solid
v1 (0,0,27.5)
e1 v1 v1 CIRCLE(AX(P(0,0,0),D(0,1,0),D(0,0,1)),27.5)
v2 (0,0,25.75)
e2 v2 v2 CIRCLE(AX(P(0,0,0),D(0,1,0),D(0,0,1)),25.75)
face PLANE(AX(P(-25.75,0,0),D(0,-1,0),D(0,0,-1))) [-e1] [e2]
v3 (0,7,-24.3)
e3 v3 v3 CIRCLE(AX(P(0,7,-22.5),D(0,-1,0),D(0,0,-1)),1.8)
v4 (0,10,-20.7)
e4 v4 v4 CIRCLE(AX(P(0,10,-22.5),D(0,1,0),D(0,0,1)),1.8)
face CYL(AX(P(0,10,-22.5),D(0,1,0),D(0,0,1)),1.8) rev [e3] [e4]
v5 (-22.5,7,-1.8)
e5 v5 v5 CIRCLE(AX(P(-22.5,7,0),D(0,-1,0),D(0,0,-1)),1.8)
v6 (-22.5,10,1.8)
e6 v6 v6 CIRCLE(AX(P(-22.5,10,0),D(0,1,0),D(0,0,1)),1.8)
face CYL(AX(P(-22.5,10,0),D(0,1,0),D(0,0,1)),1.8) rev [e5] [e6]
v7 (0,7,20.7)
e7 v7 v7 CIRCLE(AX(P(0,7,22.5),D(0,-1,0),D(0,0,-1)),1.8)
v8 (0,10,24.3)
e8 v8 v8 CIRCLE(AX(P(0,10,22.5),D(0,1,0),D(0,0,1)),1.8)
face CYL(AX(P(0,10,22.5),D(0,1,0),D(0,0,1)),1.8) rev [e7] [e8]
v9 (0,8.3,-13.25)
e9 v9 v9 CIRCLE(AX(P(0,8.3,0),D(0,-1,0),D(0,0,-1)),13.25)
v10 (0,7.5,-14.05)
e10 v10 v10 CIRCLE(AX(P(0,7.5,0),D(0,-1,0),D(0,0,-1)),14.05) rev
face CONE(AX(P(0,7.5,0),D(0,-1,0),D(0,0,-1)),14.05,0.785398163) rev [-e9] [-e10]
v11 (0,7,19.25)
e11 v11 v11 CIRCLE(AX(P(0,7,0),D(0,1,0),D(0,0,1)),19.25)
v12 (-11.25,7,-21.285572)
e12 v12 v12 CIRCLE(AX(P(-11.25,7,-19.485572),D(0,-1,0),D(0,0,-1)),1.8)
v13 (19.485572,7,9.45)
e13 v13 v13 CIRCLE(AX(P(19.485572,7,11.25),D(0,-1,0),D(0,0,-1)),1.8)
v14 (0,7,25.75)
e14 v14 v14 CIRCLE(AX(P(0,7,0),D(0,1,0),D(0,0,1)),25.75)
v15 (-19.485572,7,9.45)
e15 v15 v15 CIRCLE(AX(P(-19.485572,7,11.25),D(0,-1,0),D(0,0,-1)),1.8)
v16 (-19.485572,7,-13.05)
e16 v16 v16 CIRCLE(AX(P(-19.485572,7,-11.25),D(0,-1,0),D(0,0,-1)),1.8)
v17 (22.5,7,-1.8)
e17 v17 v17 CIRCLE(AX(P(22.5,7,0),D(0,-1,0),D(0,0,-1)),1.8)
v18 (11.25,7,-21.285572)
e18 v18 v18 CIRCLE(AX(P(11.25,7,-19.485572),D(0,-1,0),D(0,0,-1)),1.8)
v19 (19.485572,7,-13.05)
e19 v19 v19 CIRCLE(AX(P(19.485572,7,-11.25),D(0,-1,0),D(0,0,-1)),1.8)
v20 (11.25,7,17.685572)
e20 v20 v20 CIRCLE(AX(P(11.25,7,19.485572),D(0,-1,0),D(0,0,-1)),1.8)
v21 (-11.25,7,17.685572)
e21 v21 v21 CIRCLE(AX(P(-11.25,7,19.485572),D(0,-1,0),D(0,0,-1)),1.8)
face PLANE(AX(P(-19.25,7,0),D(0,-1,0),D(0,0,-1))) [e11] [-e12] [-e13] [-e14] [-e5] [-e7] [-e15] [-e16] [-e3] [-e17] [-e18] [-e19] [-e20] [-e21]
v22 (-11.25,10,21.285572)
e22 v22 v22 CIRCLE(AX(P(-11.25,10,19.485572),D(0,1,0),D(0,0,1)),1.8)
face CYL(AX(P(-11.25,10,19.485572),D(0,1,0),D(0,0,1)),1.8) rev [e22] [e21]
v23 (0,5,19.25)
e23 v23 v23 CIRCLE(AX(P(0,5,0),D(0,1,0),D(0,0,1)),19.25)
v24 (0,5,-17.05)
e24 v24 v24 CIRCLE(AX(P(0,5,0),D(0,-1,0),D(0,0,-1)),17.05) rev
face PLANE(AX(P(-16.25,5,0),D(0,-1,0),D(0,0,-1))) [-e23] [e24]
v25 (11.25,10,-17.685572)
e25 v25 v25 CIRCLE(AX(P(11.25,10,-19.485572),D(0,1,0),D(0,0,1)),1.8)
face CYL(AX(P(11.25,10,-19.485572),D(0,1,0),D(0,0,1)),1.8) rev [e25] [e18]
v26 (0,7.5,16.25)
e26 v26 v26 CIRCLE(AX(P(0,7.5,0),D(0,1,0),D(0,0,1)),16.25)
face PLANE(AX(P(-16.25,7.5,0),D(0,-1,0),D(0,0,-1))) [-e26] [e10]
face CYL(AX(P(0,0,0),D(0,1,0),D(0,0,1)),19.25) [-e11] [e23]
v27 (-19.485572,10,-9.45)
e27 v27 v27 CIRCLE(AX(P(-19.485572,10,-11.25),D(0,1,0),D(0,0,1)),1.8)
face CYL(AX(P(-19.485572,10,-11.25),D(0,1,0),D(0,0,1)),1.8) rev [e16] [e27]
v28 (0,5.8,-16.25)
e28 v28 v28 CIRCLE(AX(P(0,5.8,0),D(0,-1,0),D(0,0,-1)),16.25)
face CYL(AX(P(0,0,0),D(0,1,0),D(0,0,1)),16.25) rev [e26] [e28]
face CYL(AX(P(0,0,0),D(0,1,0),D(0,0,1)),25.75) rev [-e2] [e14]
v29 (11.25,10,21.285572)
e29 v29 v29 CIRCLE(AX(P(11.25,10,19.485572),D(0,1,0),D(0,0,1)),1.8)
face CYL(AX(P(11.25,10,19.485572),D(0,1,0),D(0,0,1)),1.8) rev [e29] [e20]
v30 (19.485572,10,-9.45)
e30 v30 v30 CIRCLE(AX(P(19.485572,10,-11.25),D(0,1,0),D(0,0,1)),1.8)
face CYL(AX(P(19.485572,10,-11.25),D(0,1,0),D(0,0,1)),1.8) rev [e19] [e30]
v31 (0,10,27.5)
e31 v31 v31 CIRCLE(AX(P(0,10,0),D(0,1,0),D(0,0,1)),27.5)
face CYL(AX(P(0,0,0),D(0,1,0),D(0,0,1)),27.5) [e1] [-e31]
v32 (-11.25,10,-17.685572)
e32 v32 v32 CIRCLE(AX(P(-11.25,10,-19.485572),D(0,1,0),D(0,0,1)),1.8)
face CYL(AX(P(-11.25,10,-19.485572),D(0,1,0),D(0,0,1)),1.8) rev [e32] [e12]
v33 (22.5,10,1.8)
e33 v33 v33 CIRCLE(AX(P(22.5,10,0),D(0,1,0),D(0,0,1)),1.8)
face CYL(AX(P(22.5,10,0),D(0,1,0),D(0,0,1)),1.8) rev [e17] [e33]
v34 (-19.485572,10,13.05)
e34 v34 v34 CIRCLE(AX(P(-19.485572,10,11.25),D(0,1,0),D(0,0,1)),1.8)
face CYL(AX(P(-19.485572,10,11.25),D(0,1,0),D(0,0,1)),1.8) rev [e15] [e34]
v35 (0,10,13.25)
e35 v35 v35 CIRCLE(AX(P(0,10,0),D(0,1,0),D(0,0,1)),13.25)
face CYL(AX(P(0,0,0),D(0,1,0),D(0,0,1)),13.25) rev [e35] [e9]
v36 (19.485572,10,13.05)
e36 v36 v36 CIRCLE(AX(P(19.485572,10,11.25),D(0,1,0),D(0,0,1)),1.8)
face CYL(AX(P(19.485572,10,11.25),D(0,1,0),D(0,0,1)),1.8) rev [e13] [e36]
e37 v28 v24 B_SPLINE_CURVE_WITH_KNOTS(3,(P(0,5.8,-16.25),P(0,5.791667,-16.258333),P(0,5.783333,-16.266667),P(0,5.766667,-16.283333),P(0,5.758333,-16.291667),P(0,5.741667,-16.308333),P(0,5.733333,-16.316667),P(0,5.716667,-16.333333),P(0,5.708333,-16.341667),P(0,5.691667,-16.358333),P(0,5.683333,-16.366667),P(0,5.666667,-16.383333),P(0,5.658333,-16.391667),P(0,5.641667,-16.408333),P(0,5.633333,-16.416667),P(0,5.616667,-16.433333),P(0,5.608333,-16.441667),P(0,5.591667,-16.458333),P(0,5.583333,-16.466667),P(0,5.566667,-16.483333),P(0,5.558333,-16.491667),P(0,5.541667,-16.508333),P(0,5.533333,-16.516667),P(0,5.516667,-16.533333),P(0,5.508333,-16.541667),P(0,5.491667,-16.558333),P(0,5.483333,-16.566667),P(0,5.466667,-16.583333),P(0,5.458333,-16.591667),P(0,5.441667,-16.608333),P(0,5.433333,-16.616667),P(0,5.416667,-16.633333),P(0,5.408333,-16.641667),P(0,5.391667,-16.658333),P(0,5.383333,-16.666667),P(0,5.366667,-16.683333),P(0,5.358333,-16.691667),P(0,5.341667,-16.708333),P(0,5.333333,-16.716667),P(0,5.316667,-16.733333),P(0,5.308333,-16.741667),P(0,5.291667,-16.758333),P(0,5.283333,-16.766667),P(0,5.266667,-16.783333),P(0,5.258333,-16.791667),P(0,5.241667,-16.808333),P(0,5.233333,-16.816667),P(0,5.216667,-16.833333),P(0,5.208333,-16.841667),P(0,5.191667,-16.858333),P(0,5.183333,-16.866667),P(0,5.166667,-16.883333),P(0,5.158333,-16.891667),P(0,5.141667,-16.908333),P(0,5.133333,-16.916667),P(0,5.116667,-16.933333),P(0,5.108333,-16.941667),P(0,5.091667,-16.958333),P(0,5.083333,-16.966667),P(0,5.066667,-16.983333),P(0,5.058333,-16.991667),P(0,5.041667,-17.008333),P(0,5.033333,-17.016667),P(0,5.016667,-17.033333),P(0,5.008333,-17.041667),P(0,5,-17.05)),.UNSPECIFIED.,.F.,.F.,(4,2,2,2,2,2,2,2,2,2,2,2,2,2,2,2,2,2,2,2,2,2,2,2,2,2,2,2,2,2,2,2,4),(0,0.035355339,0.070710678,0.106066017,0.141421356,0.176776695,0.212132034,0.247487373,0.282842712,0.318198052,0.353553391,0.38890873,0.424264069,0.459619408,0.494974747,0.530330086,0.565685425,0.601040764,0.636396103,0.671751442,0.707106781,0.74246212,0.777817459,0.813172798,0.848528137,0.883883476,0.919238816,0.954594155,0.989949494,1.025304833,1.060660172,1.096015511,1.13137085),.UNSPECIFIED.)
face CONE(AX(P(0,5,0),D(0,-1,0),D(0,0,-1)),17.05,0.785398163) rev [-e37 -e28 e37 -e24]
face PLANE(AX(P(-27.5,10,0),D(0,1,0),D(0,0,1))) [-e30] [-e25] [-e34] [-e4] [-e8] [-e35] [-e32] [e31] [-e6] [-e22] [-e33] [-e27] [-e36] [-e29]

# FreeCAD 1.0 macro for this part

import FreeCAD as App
import Part
import Sketcher
from FreeCAD import Vector
Q = App.Units.Quantity


def edges_at(feature, points):
    """Names of the edges that pass closest to the given points."""
    edges = feature.Shape.Edges
    near = lambda p: min(range(len(edges)), key=lambda i: edges[i].distToShape(Part.Vertex(*p))[0])
    return sorted({f"Edge{near(p) + 1}" for p in points})

doc = App.newDocument("Part")
body = doc.addObject("PartDesign::Body", "Body")

# Sketch on XY plane
sketch1 = doc.addObject("Sketcher::SketchObject", "Sketch")
body.addObject(sketch1)
sketch1.AttachmentSupport = (doc.XY_Plane, [""])
sketch1.MapMode = "FlatFace"
sketch1.addGeometry(Part.LineSegment(Vector(-27.5, 0, 0), Vector(-25.75, 0, 0)), False)
sketch1.addGeometry(Part.LineSegment(Vector(-25.75, 0, 0), Vector(-25.75, 7, 0)), False)
sketch1.addGeometry(Part.LineSegment(Vector(-25.75, 7, 0), Vector(-19.25, 7, 0)), False)
sketch1.addGeometry(Part.LineSegment(Vector(-19.25, 7, 0), Vector(-19.25, 5, 0)), False)
sketch1.addGeometry(Part.LineSegment(Vector(-19.25, 5, 0), Vector(-16.25, 5, 0)), False)
sketch1.addGeometry(Part.LineSegment(Vector(-16.25, 5, 0), Vector(-16.25, 7.5, 0)), False)
sketch1.addGeometry(Part.LineSegment(Vector(-16.25, 7.5, 0), Vector(-13.25, 7.5, 0)), False)
sketch1.addGeometry(Part.LineSegment(Vector(-13.25, 7.5, 0), Vector(-13.25, 10, 0)), False)
sketch1.addGeometry(Part.LineSegment(Vector(-13.25, 10, 0), Vector(-27.5, 10, 0)), False)
sketch1.addGeometry(Part.LineSegment(Vector(-27.5, 10, 0), Vector(-27.5, 0, 0)), False)
sketch1.addConstraint(Sketcher.Constraint("Coincident", 0, 2, 1, 1))
sketch1.addConstraint(Sketcher.Constraint("Coincident", 1, 2, 2, 1))
sketch1.addConstraint(Sketcher.Constraint("Coincident", 2, 2, 3, 1))
sketch1.addConstraint(Sketcher.Constraint("Coincident", 3, 2, 4, 1))
sketch1.addConstraint(Sketcher.Constraint("Coincident", 4, 2, 5, 1))
sketch1.addConstraint(Sketcher.Constraint("Coincident", 5, 2, 6, 1))
sketch1.addConstraint(Sketcher.Constraint("Coincident", 6, 2, 7, 1))
sketch1.addConstraint(Sketcher.Constraint("Coincident", 7, 2, 8, 1))
sketch1.addConstraint(Sketcher.Constraint("Coincident", 8, 2, 9, 1))
sketch1.addConstraint(Sketcher.Constraint("Coincident", 9, 2, 0, 1))
sketch1.addConstraint(Sketcher.Constraint("Horizontal", 0))
sketch1.addConstraint(Sketcher.Constraint("Vertical", 1))
sketch1.addConstraint(Sketcher.Constraint("Horizontal", 2))
sketch1.addConstraint(Sketcher.Constraint("Vertical", 3))
sketch1.addConstraint(Sketcher.Constraint("Horizontal", 4))
sketch1.addConstraint(Sketcher.Constraint("Vertical", 5))
sketch1.addConstraint(Sketcher.Constraint("Horizontal", 6))
sketch1.addConstraint(Sketcher.Constraint("Vertical", 7))
sketch1.addConstraint(Sketcher.Constraint("Horizontal", 8))
sketch1.addConstraint(Sketcher.Constraint("Vertical", 9))
sketch1.addConstraint(Sketcher.Constraint("PointOnObject", 0, 2, -1))
sketch1.addConstraint(Sketcher.Constraint("Equal", 4, 6))
sketch1.addConstraint(Sketcher.Constraint("Equal", 5, 7))
sketch1.addConstraint(Sketcher.Constraint("DistanceX", 4, 1, 4, 2, Q("3 mm")))
sketch1.addConstraint(Sketcher.Constraint("DistanceY", 1, 1, 1, 2, Q("7 mm")))
sketch1.addConstraint(Sketcher.Constraint("DistanceY", 3, 2, 3, 1, Q("2 mm")))
sketch1.addConstraint(Sketcher.Constraint("DistanceY", 9, 2, 9, 1, Q("10 mm")))
sketch1.addConstraint(Sketcher.Constraint("DistanceX", 2, 1, 2, 2, Q("6.5 mm")))
sketch1.addConstraint(Sketcher.Constraint("DistanceX", 0, 1, 0, 2, Q("1.75 mm")))
sketch1.addConstraint(Sketcher.Constraint("DistanceX", 8, 2, -1, 1, Q("27.5 mm")))
revolution = doc.addObject("PartDesign::Revolution", "Revolution")
body.addObject(revolution)
revolution.Profile = sketch1
revolution.ReferenceAxis = (sketch1, ["V_Axis"])
revolution.Angle = 360

# Sketch on XZ plane
sketch2 = doc.addObject("Sketcher::SketchObject", "Sketch001")
body.addObject(sketch2)
sketch2.AttachmentSupport = (doc.XZ_Plane, [""])
sketch2.MapMode = "FlatFace"
sketch2.AttachmentOffset = App.Placement(Vector(0, 0, -10), App.Rotation())
sketch2.addGeometry(Part.Circle(Vector(-22.5, 0, 0), Vector(0, 0, 1), 1.8), False)
sketch2.addGeometry(Part.Circle(Vector(-19.485572, -11.25, 0), Vector(0, 0, 1), 1.8), False)
sketch2.addGeometry(Part.Circle(Vector(-11.25, -19.485572, 0), Vector(0, 0, 1), 1.8), False)
sketch2.addGeometry(Part.Circle(Vector(0, -22.5, 0), Vector(0, 0, 1), 1.8), False)
sketch2.addGeometry(Part.Circle(Vector(11.25, -19.485572, 0), Vector(0, 0, 1), 1.8), False)
sketch2.addGeometry(Part.Circle(Vector(19.485572, -11.25, 0), Vector(0, 0, 1), 1.8), False)
sketch2.addGeometry(Part.Circle(Vector(22.5, 0, 0), Vector(0, 0, 1), 1.8), False)
sketch2.addGeometry(Part.Circle(Vector(19.485572, 11.25, 0), Vector(0, 0, 1), 1.8), False)
sketch2.addGeometry(Part.Circle(Vector(11.25, 19.485572, 0), Vector(0, 0, 1), 1.8), False)
sketch2.addGeometry(Part.Circle(Vector(0, 22.5, 0), Vector(0, 0, 1), 1.8), False)
sketch2.addGeometry(Part.Circle(Vector(-11.25, 19.485572, 0), Vector(0, 0, 1), 1.8), False)
sketch2.addGeometry(Part.Circle(Vector(-19.485572, 11.25, 0), Vector(0, 0, 1), 1.8), False)
sketch2.addConstraint(Sketcher.Constraint("Equal", 0, 1))
sketch2.addConstraint(Sketcher.Constraint("Equal", 1, 2))
sketch2.addConstraint(Sketcher.Constraint("Equal", 2, 3))
sketch2.addConstraint(Sketcher.Constraint("Equal", 3, 4))
sketch2.addConstraint(Sketcher.Constraint("Equal", 4, 5))
sketch2.addConstraint(Sketcher.Constraint("Equal", 5, 6))
sketch2.addConstraint(Sketcher.Constraint("Equal", 6, 7))
sketch2.addConstraint(Sketcher.Constraint("Equal", 7, 8))
sketch2.addConstraint(Sketcher.Constraint("Equal", 8, 9))
sketch2.addConstraint(Sketcher.Constraint("Equal", 9, 10))
sketch2.addConstraint(Sketcher.Constraint("Equal", 10, 11))
sketch2.addConstraint(Sketcher.Constraint("Symmetric", 0, 3, 6, 3, -1, 1))
sketch2.addConstraint(Sketcher.Constraint("Symmetric", 1, 3, 7, 3, -1, 1))
sketch2.addConstraint(Sketcher.Constraint("Symmetric", 2, 3, 8, 3, -1, 1))
sketch2.addConstraint(Sketcher.Constraint("Symmetric", 3, 3, 9, 3, -1, 1))
sketch2.addConstraint(Sketcher.Constraint("Symmetric", 4, 3, 10, 3, -1, 1))
sketch2.addConstraint(Sketcher.Constraint("Symmetric", 5, 3, 11, 3, -1, 1))
sketch2.addConstraint(Sketcher.Constraint("Symmetric", 2, 3, 4, 3, -2))
sketch2.addConstraint(Sketcher.Constraint("Symmetric", 1, 3, 5, 3, -2))
sketch2.addConstraint(Sketcher.Constraint("PointOnObject", 0, 3, -1))
sketch2.addConstraint(Sketcher.Constraint("PointOnObject", 3, 3, -2))
sketch2.addConstraint(Sketcher.Constraint("Diameter", 0, Q("3.6 mm")))
sketch2.addConstraint(Sketcher.Constraint("DistanceX", 0, 3, -1, 1, Q("22.5 mm")))
sketch2.addConstraint(Sketcher.Constraint("DistanceY", 3, 3, -1, 1, Q("22.5 mm")))
sketch2.addConstraint(Sketcher.Constraint("DistanceX", 2, 3, 4, 3, Q("22.5 mm")))
sketch2.addConstraint(Sketcher.Constraint("DistanceY", 5, 3, 7, 3, Q("22.5 mm")))
sketch2.addConstraint(Sketcher.Constraint("DistanceX", 1, 3, -1, 1, Q("19.485572 mm")))
sketch2.addConstraint(Sketcher.Constraint("DistanceY", 2, 3, -1, 1, Q("19.485572 mm")))
doc.recompute()
hole = doc.addObject("PartDesign::Hole", "Hole")
body.addObject(hole)
hole.Profile = sketch2
hole.ThreadType = "None"
hole.Diameter = 3.6
hole.DepthType = "ThroughAll"
hole.Reversed = True
doc.recompute()

chamfer = doc.addObject("PartDesign::Chamfer", "Chamfer")
body.addObject(chamfer)
chamfer.Base = (hole, edges_at(hole, [(0, 7.5, -13.25), (0, 5, -16.25)]))
chamfer.Size = 0.8

doc.recompute()
